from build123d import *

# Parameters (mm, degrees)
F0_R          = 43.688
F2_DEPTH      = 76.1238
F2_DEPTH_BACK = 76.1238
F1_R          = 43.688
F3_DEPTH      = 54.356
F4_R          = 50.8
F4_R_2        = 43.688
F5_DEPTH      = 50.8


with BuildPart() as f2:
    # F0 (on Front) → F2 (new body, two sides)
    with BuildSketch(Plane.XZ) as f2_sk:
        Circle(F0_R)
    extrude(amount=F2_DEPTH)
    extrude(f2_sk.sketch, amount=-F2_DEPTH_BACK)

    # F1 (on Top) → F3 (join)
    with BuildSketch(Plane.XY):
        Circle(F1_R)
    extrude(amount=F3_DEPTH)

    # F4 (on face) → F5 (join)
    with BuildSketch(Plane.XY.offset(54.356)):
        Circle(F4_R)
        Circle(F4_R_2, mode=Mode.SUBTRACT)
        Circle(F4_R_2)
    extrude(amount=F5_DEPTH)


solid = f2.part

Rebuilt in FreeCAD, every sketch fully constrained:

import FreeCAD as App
import Part
import Sketcher
Q = App.Units.Quantity

doc = App.newDocument("Part")
body = doc.addObject("PartDesign::Body", "Body")

# Sketch on XZ plane
sketch1 = doc.addObject("Sketcher::SketchObject", "Sketch")
body.addObject(sketch1)
sketch1.AttachmentSupport = (doc.XZ_Plane, [""])
sketch1.MapMode = "FlatFace"
sketch1.addGeometry(Part.Circle(App.Vector(0, 0, 0), App.Vector(0, 0, 1), 44), False)
sketch1.addConstraint(Sketcher.Constraint("Coincident", 0, 3, -1, 1))
sketch1.addConstraint(Sketcher.Constraint("Diameter", 0, Q("3.44 in")))
pad1 = doc.addObject("PartDesign::Pad", "Pad")
body.addObject(pad1)
pad1.Profile = sketch1
pad1.Type = "TwoLengths"
pad1.Length = Q("2.997 in")
pad1.Length2 = Q("2.997 in")

# Sketch on XY plane
sketch2 = doc.addObject("Sketcher::SketchObject", "Sketch001")
body.addObject(sketch2)
sketch2.AttachmentSupport = (doc.XY_Plane, [""])
sketch2.MapMode = "FlatFace"
sketch2.addGeometry(Part.Circle(App.Vector(0, 0, 0), App.Vector(0, 0, 1), 44), False)
sketch2.addConstraint(Sketcher.Constraint("Coincident", 0, 3, -1, 1))
sketch2.addConstraint(Sketcher.Constraint("Diameter", 0, Q("3.44 in")))
pad2 = doc.addObject("PartDesign::Pad", "Pad001")
body.addObject(pad2)
pad2.Profile = sketch2
pad2.Length = Q("2.14 in")

# Sketch on XY plane
sketch3 = doc.addObject("Sketcher::SketchObject", "Sketch002")
body.addObject(sketch3)
sketch3.AttachmentSupport = (doc.XY_Plane, [""])
sketch3.MapMode = "FlatFace"
sketch3.AttachmentOffset = App.Placement(App.Vector(0, 0, 2.14 * 25.4), App.Rotation())
sketch3.addGeometry(Part.Circle(App.Vector(0, 0, 0), App.Vector(0, 0, 1), 51), False)
sketch3.addConstraint(Sketcher.Constraint("Coincident", 0, 3, -1, 1))
sketch3.addConstraint(Sketcher.Constraint("Diameter", 0, Q("4 in")))
pad3 = doc.addObject("PartDesign::Pad", "Pad002")
body.addObject(pad3)
pad3.Profile = sketch3
pad3.Length = Q("2 in")

doc.recompute()
